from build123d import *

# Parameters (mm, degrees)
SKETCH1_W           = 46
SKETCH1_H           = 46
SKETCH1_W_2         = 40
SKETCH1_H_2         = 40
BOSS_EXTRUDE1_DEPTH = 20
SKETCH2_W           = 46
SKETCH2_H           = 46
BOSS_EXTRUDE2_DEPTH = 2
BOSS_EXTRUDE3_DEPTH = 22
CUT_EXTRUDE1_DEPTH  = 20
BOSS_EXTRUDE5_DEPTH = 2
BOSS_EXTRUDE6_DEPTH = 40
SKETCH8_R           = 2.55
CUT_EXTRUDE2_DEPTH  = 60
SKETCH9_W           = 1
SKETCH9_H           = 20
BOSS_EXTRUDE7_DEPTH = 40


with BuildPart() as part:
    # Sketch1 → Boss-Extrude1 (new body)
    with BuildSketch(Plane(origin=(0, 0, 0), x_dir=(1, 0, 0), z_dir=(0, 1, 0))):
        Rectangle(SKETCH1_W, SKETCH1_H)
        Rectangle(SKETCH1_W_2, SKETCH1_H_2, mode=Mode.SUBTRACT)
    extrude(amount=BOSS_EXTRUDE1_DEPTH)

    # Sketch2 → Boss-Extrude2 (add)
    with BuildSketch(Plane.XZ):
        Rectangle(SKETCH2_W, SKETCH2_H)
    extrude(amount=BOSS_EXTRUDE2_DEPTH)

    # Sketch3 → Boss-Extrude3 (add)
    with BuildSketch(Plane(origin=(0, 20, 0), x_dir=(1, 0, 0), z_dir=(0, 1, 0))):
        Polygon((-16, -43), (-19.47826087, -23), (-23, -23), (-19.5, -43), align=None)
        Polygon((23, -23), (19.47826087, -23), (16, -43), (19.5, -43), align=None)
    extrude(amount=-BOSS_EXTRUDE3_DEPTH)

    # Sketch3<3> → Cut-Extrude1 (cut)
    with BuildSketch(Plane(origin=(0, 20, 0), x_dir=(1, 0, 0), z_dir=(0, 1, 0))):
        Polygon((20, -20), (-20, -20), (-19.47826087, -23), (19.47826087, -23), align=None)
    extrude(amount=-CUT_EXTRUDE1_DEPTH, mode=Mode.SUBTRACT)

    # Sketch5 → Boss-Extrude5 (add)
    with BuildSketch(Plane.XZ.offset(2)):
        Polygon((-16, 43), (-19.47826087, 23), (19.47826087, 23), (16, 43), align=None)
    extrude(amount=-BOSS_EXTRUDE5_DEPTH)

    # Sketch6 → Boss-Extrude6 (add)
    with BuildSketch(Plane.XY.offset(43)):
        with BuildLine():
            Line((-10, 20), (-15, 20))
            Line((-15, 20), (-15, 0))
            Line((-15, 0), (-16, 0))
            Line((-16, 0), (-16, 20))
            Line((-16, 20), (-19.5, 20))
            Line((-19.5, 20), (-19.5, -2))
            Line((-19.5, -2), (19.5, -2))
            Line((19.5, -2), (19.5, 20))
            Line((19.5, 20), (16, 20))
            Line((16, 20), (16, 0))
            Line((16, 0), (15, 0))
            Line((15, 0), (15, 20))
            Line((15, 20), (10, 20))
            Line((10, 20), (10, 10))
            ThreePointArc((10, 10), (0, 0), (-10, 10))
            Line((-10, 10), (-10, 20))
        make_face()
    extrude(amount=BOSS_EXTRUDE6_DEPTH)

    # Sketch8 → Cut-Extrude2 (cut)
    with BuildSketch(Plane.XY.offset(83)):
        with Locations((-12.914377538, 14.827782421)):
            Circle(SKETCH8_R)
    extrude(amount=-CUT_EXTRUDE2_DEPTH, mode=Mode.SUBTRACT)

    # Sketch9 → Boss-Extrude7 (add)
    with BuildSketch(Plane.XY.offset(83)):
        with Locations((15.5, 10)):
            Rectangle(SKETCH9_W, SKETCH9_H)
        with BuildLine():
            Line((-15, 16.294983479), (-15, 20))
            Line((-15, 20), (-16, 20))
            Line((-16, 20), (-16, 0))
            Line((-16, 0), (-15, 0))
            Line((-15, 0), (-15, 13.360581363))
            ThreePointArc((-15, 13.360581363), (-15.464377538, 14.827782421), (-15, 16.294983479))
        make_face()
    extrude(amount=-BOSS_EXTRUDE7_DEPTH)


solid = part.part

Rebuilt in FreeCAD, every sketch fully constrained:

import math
import FreeCAD as App
import Part
import Sketcher

doc = App.newDocument("Part")
body = doc.addObject("PartDesign::Body", "Body")

# Sketch on XZ plane
sketch1 = body.newObject("Sketcher::SketchObject", "Sketch")
sketch1.AttachmentSupport = (doc.getObject("XZ_Plane"), [""])
sketch1.MapMode = "FlatFace"
sketch1.addGeometry([
    Part.LineSegment(App.Vector(-23, -23, 0), App.Vector(-23, 23, 0)),  # 0
    Part.LineSegment(App.Vector(-23, 23, 0), App.Vector(23, 23, 0)),  # 1
    Part.LineSegment(App.Vector(23, 23, 0), App.Vector(23, -23, 0)),  # 2
    Part.LineSegment(App.Vector(23, -23, 0), App.Vector(-23, -23, 0)),  # 3
    Part.LineSegment(App.Vector(20, 20, 0), App.Vector(-20, 20, 0)),  # 4
    Part.LineSegment(App.Vector(-20, 20, 0), App.Vector(-20, -20, 0)),  # 5
    Part.LineSegment(App.Vector(-20, -20, 0), App.Vector(20, -20, 0)),  # 6
    Part.LineSegment(App.Vector(20, -20, 0), App.Vector(20, 20, 0)),  # 7
], False)
sketch1.addConstraint([
    Sketcher.Constraint("Coincident", 0, 2, 1, 1),
    Sketcher.Constraint("Coincident", 1, 2, 2, 1),
    Sketcher.Constraint("Coincident", 2, 2, 3, 1),
    Sketcher.Constraint("Coincident", 3, 2, 0, 1),
    Sketcher.Constraint("Coincident", 4, 2, 5, 1),
    Sketcher.Constraint("Coincident", 5, 2, 6, 1),
    Sketcher.Constraint("Coincident", 6, 2, 7, 1),
    Sketcher.Constraint("Coincident", 7, 2, 4, 1),
    Sketcher.Constraint("Vertical", 0),
    Sketcher.Constraint("Horizontal", 1),
    Sketcher.Constraint("Vertical", 2),
    Sketcher.Constraint("Horizontal", 3),
    Sketcher.Constraint("Horizontal", 4),
    Sketcher.Constraint("Vertical", 5),
    Sketcher.Constraint("Horizontal", 6),
    Sketcher.Constraint("Vertical", 7),
    Sketcher.Constraint("Symmetric", 0, 2, 2, 2, -1, 1),
    Sketcher.Constraint("Symmetric", 4, 2, 6, 2, -1, 1),
    Sketcher.Constraint("Equal", 3, 0),
    Sketcher.Constraint("Equal", 6, 5),
    Sketcher.Constraint("DistanceX", 1, 1, 1, 2, 46.0),
    Sketcher.Constraint("DistanceX", 4, 2, 4, 1, 40.0),
])
pad1 = body.newObject("PartDesign::Pad", "Pad")
pad1.Profile = sketch1
pad1.Length = 20
pad1.Reversed = True

# Sketch on XZ plane
sketch2 = body.newObject("Sketcher::SketchObject", "Sketch001")
sketch2.AttachmentSupport = (doc.getObject("XZ_Plane"), [""])
sketch2.MapMode = "FlatFace"
sketch2.addGeometry([
    Part.LineSegment(App.Vector(-23, 23, 0), App.Vector(-23, -23, 0)),
    Part.LineSegment(App.Vector(-23, -23, 0), App.Vector(23, -23, 0)),
    Part.LineSegment(App.Vector(23, -23, 0), App.Vector(23, 23, 0)),
    Part.LineSegment(App.Vector(23, 23, 0), App.Vector(-23, 23, 0)),
], False)
sketch2.addConstraint([
    Sketcher.Constraint("Coincident", 0, 2, 1, 1),
    Sketcher.Constraint("Coincident", 1, 2, 2, 1),
    Sketcher.Constraint("Coincident", 2, 2, 3, 1),
    Sketcher.Constraint("Coincident", 3, 2, 0, 1),
    Sketcher.Constraint("Vertical", 0),
    Sketcher.Constraint("Horizontal", 1),
    Sketcher.Constraint("Vertical", 2),
    Sketcher.Constraint("Horizontal", 3),
    Sketcher.Constraint("Symmetric", 0, 2, 2, 2, -1, 1),
    Sketcher.Constraint("Equal", 3, 0),
    Sketcher.Constraint("DistanceX", 1, 1, 1, 2, 46.0),
])
pad2 = body.newObject("PartDesign::Pad", "Pad001")
pad2.Profile = sketch2
pad2.Length = 2

# Sketch on XZ plane
sketch3 = body.newObject("Sketcher::SketchObject", "Sketch002")
sketch3.AttachmentSupport = (doc.getObject("XZ_Plane"), [""])
sketch3.MapMode = "FlatFace"
sketch3.AttachmentOffset = App.Placement(App.Vector(0, 0, -20), App.Rotation())
sketch3.addGeometry([
    Part.LineSegment(App.Vector(-16, 43, 0), App.Vector(-19.5, 23, 0)),  # 0
    Part.LineSegment(App.Vector(-19.5, 23, 0), App.Vector(-23, 23, 0)),  # 1
    Part.LineSegment(App.Vector(-23, 23, 0), App.Vector(-19.5, 43, 0)),  # 2
    Part.LineSegment(App.Vector(-19.5, 43, 0), App.Vector(-16, 43, 0)),  # 3
    Part.LineSegment(App.Vector(23, 23, 0), App.Vector(19.5, 23, 0)),  # 4
    Part.LineSegment(App.Vector(19.5, 23, 0), App.Vector(16, 43, 0)),  # 5
    Part.LineSegment(App.Vector(16, 43, 0), App.Vector(19.5, 43, 0)),  # 6
    Part.LineSegment(App.Vector(19.5, 43, 0), App.Vector(23, 23, 0)),  # 7
], False)
sketch3.addConstraint([
    Sketcher.Constraint("Coincident", 0, 2, 1, 1),
    Sketcher.Constraint("Coincident", 1, 2, 2, 1),
    Sketcher.Constraint("Coincident", 2, 2, 3, 1),
    Sketcher.Constraint("Coincident", 3, 2, 0, 1),
    Sketcher.Constraint("Coincident", 4, 2, 5, 1),
    Sketcher.Constraint("Coincident", 5, 2, 6, 1),
    Sketcher.Constraint("Coincident", 6, 2, 7, 1),
    Sketcher.Constraint("Coincident", 7, 2, 4, 1),
    Sketcher.Constraint("Horizontal", 1),
    Sketcher.Constraint("Horizontal", 3),
    Sketcher.Constraint("Horizontal", 4),
    Sketcher.Constraint("Horizontal", 6),
    Sketcher.Constraint("Symmetric", 0, 2, 4, 2, -2),
    Sketcher.Constraint("Symmetric", 3, 2, 5, 2, -2),
    Sketcher.Constraint("Equal", 1, 4),
    Sketcher.Constraint("Equal", 3, 6),
    Sketcher.Constraint("DistanceX", 3, 1, 3, 2, 3.5),
    Sketcher.Constraint("DistanceY", -1, 1, 0, 2, 23.0),
    Sketcher.Constraint("DistanceX", 1, 2, -1, 1, 23.0),
    Sketcher.Constraint("DistanceY", -1, 1, 2, 2, 43.0),
    Sketcher.Constraint("DistanceX", 3, 2, -1, 1, 16.0),
    Sketcher.Constraint("DistanceX", 1, 2, 1, 1, 3.521739),
])
pad3 = body.newObject("PartDesign::Pad", "Pad002")
pad3.Profile = sketch3
pad3.Length = 22

# Sketch on XZ plane
sketch4 = body.newObject("Sketcher::SketchObject", "Sketch003")
sketch4.AttachmentSupport = (doc.getObject("XZ_Plane"), [""])
sketch4.MapMode = "FlatFace"
sketch4.AttachmentOffset = App.Placement(App.Vector(0, 0, -20), App.Rotation())
sketch4.addGeometry([
    Part.LineSegment(App.Vector(20, 20, 0), App.Vector(-20, 20, 0)),
    Part.LineSegment(App.Vector(-20, 20, 0), App.Vector(-19.5, 23, 0)),
    Part.LineSegment(App.Vector(-19.5, 23, 0), App.Vector(19.5, 23, 0)),
    Part.LineSegment(App.Vector(19.5, 23, 0), App.Vector(20, 20, 0)),
], False)
sketch4.addConstraint([
    Sketcher.Constraint("Coincident", 0, 2, 1, 1),
    Sketcher.Constraint("Coincident", 1, 2, 2, 1),
    Sketcher.Constraint("Coincident", 2, 2, 3, 1),
    Sketcher.Constraint("Coincident", 3, 2, 0, 1),
    Sketcher.Constraint("Horizontal", 0),
    Sketcher.Constraint("Horizontal", 2),
    Sketcher.Constraint("Equal", 1, 3),
    Sketcher.Constraint("DistanceX", 0, 2, 0, 1, 40.0),
    Sketcher.Constraint("DistanceX", 0, 2, -1, 1, 20.0),
    Sketcher.Constraint("DistanceY", -1, 1, 0, 2, 20.0),
    Sketcher.Constraint("DistanceY", -1, 1, 1, 2, 23.0),
    Sketcher.Constraint("DistanceX", 2, 1, 2, 2, 38.956522),
])
pocket1 = body.newObject("PartDesign::Pocket", "Pocket")
pocket1.Profile = sketch4
pocket1.Length = 20
pocket1.Reversed = True

# Sketch on XZ plane
sketch5 = body.newObject("Sketcher::SketchObject", "Sketch004")
sketch5.AttachmentSupport = (doc.getObject("XZ_Plane"), [""])
sketch5.MapMode = "FlatFace"
sketch5.AttachmentOffset = App.Placement(App.Vector(0, 0, 2), App.Rotation())
sketch5.addGeometry([
    Part.LineSegment(App.Vector(-16, 43, 0), App.Vector(-19, 23, 0)),
    Part.LineSegment(App.Vector(-19, 23, 0), App.Vector(19, 23, 0)),
    Part.LineSegment(App.Vector(19, 23, 0), App.Vector(16, 43, 0)),
    Part.LineSegment(App.Vector(16, 43, 0), App.Vector(-16, 43, 0)),
], False)
sketch5.addConstraint([
    Sketcher.Constraint("Coincident", 0, 2, 1, 1),
    Sketcher.Constraint("Coincident", 1, 2, 2, 1),
    Sketcher.Constraint("Coincident", 2, 2, 3, 1),
    Sketcher.Constraint("Coincident", 3, 2, 0, 1),
    Sketcher.Constraint("Horizontal", 1),
    Sketcher.Constraint("Horizontal", 3),
    Sketcher.Constraint("Equal", 0, 2),
    Sketcher.Constraint("DistanceX", 3, 2, 3, 1, 32.0),
    Sketcher.Constraint("DistanceY", -1, 1, 0, 2, 23.0),
    Sketcher.Constraint("DistanceX", -1, 1, 2, 2, 16.0),
    Sketcher.Constraint("DistanceY", -1, 1, 2, 2, 43.0),
    Sketcher.Constraint("DistanceX", 1, 1, 1, 2, 38.956522),
])
pad4 = body.newObject("PartDesign::Pad", "Pad003")
pad4.Profile = sketch5
pad4.Length = 2
pad4.Reversed = True

# Sketch on XY plane
sketch6 = body.newObject("Sketcher::SketchObject", "Sketch005")
sketch6.AttachmentSupport = (doc.getObject("XY_Plane"), [""])
sketch6.MapMode = "FlatFace"
sketch6.AttachmentOffset = App.Placement(App.Vector(0, 0, 43), App.Rotation())
sketch6.addGeometry([
    Part.LineSegment(App.Vector(-10, 20, 0), App.Vector(-15, 20, 0)),  # 0
    Part.LineSegment(App.Vector(-15, 20, 0), App.Vector(-15, 0, 0)),  # 1
    Part.LineSegment(App.Vector(-15, 0, 0), App.Vector(-16, 0, 0)),  # 2
    Part.LineSegment(App.Vector(-16, 0, 0), App.Vector(-16, 20, 0)),  # 3
    Part.LineSegment(App.Vector(-16, 20, 0), App.Vector(-19.5, 20, 0)),  # 4
    Part.LineSegment(App.Vector(-19.5, 20, 0), App.Vector(-19.5, -2, 0)),  # 5
    Part.LineSegment(App.Vector(-19.5, -2, 0), App.Vector(19.5, -2, 0)),  # 6
    Part.LineSegment(App.Vector(19.5, -2, 0), App.Vector(19.5, 20, 0)),  # 7
    Part.LineSegment(App.Vector(19.5, 20, 0), App.Vector(16, 20, 0)),  # 8
    Part.LineSegment(App.Vector(16, 20, 0), App.Vector(16, 0, 0)),  # 9
    Part.LineSegment(App.Vector(16, 0, 0), App.Vector(15, 0, 0)),  # 10
    Part.LineSegment(App.Vector(15, 0, 0), App.Vector(15, 20, 0)),  # 11
    Part.LineSegment(App.Vector(15, 20, 0), App.Vector(10, 20, 0)),  # 12
    Part.LineSegment(App.Vector(10, 20, 0), App.Vector(10, 10, 0)),  # 13
    Part.ArcOfCircle(Part.Circle(App.Vector(0, 10, 0), App.Vector(0, 0, 1), 10), math.radians(180), math.radians(360)),  # 14
    Part.LineSegment(App.Vector(-10, 10, 0), App.Vector(-10, 20, 0)),  # 15
], False)
sketch6.addConstraint([
    Sketcher.Constraint("Coincident", 0, 2, 1, 1),
    Sketcher.Constraint("Coincident", 1, 2, 2, 1),
    Sketcher.Constraint("Coincident", 2, 2, 3, 1),
    Sketcher.Constraint("Coincident", 3, 2, 4, 1),
    Sketcher.Constraint("Coincident", 4, 2, 5, 1),
    Sketcher.Constraint("Coincident", 5, 2, 6, 1),
    Sketcher.Constraint("Coincident", 6, 2, 7, 1),
    Sketcher.Constraint("Coincident", 7, 2, 8, 1),
    Sketcher.Constraint("Coincident", 8, 2, 9, 1),
    Sketcher.Constraint("Coincident", 9, 2, 10, 1),
    Sketcher.Constraint("Coincident", 10, 2, 11, 1),
    Sketcher.Constraint("Coincident", 11, 2, 12, 1),
    Sketcher.Constraint("Coincident", 12, 2, 13, 1),
    Sketcher.Constraint("Tangent", 13, 2, 14, 2),
    Sketcher.Constraint("Tangent", 14, 1, 15, 1),
    Sketcher.Constraint("Coincident", 15, 2, 0, 1),
    Sketcher.Constraint("Horizontal", 0),
    Sketcher.Constraint("Vertical", 1),
    Sketcher.Constraint("Horizontal", 2),
    Sketcher.Constraint("Vertical", 3),
    Sketcher.Constraint("Horizontal", 4),
    Sketcher.Constraint("Vertical", 5),
    Sketcher.Constraint("Horizontal", 6),
    Sketcher.Constraint("Vertical", 7),
    Sketcher.Constraint("Horizontal", 8),
    Sketcher.Constraint("Vertical", 9),
    Sketcher.Constraint("Horizontal", 10),
    Sketcher.Constraint("Vertical", 11),
    Sketcher.Constraint("Horizontal", 12),
    Sketcher.Constraint("Vertical", 13),
    Sketcher.Constraint("Vertical", 15),
    Sketcher.Constraint("Symmetric", 2, 2, 9, 2, -1, 1),
    Sketcher.Constraint("Symmetric", 4, 2, 7, 2, -2),
    Sketcher.Constraint("Symmetric", 1, 2, 10, 2, -2),
    Sketcher.Constraint("Symmetric", 12, 2, 15, 2, -2),
    Sketcher.Constraint("Horizontal", 0, 2, 3, 2),
    Sketcher.Constraint("Radius", 14, 10.0),
    Sketcher.Constraint("DistanceX", 0, 2, 0, 1, 5.0),
    Sketcher.Constraint("DistanceX", 2, 2, 2, 1, 1.0),
    Sketcher.Constraint("DistanceX", 6, 1, 6, 2, 39.0),
    Sketcher.Constraint("DistanceY", 1, 2, 1, 1, 20.0),
    Sketcher.Constraint("DistanceY", 5, 2, 5, 1, 22.0),
    Sketcher.Constraint("DistanceY", 13, 2, 13, 1, 10.0),
])
pad5 = body.newObject("PartDesign::Pad", "Pad004")
pad5.Profile = sketch6
pad5.Length = 40

# Sketch on XY plane
sketch7 = body.newObject("Sketcher::SketchObject", "Sketch006")
sketch7.AttachmentSupport = (doc.getObject("XY_Plane"), [""])
sketch7.MapMode = "FlatFace"
sketch7.AttachmentOffset = App.Placement(App.Vector(0, 0, 83), App.Rotation())
sketch7.addGeometry(Part.Circle(App.Vector(-12.9, 14.8, 0), App.Vector(0, 0, 1), 2.5), False)
sketch7.addConstraint([
    Sketcher.Constraint("Diameter", 0, 5.1),
    Sketcher.Constraint("DistanceX", 0, 3, -1, 1, 12.914378),
    Sketcher.Constraint("DistanceY", -1, 1, 0, 3, 14.827782),
])
pocket2 = body.newObject("PartDesign::Pocket", "Pocket001")
pocket2.Profile = sketch7
pocket2.Length = 60

# Sketch on XY plane
sketch8 = body.newObject("Sketcher::SketchObject", "Sketch007")
sketch8.AttachmentSupport = (doc.getObject("XY_Plane"), [""])
sketch8.MapMode = "FlatFace"
sketch8.AttachmentOffset = App.Placement(App.Vector(0, 0, 83), App.Rotation())
sketch8.addGeometry([
    Part.LineSegment(App.Vector(15, 20, 0), App.Vector(15, 0, 0)),  # 0
    Part.LineSegment(App.Vector(15, 0, 0), App.Vector(16, 0, 0)),  # 1
    Part.LineSegment(App.Vector(16, 0, 0), App.Vector(16, 20, 0)),  # 2
    Part.LineSegment(App.Vector(16, 20, 0), App.Vector(15, 20, 0)),  # 3
    Part.LineSegment(App.Vector(-15, 16.3, 0), App.Vector(-15, 20, 0)),  # 4
    Part.LineSegment(App.Vector(-15, 20, 0), App.Vector(-16, 20, 0)),  # 5
    Part.LineSegment(App.Vector(-16, 20, 0), App.Vector(-16, 0, 0)),  # 6
    Part.LineSegment(App.Vector(-16, 0, 0), App.Vector(-15, 0, 0)),  # 7
    Part.LineSegment(App.Vector(-15, 0, 0), App.Vector(-15, 13.4, 0)),  # 8
    Part.ArcOfCircle(Part.Circle(App.Vector(-12.9, 14.8, 0), App.Vector(0, 0, 1), 2.5), math.radians(145), math.radians(215)),  # 9
], False)
sketch8.addConstraint([
    Sketcher.Constraint("Coincident", 0, 2, 1, 1),
    Sketcher.Constraint("Coincident", 1, 2, 2, 1),
    Sketcher.Constraint("Coincident", 2, 2, 3, 1),
    Sketcher.Constraint("Coincident", 3, 2, 0, 1),
    Sketcher.Constraint("Coincident", 4, 2, 5, 1),
    Sketcher.Constraint("Coincident", 5, 2, 6, 1),
    Sketcher.Constraint("Coincident", 6, 2, 7, 1),
    Sketcher.Constraint("Coincident", 7, 2, 8, 1),
    Sketcher.Constraint("Coincident", 8, 2, 9, 2),
    Sketcher.Constraint("Coincident", 9, 1, 4, 1),
    Sketcher.Constraint("Vertical", 0),
    Sketcher.Constraint("Horizontal", 1),
    Sketcher.Constraint("Vertical", 2),
    Sketcher.Constraint("Horizontal", 3),
    Sketcher.Constraint("Vertical", 4),
    Sketcher.Constraint("Horizontal", 5),
    Sketcher.Constraint("Vertical", 6),
    Sketcher.Constraint("Horizontal", 7),
    Sketcher.Constraint("Vertical", 8),
    Sketcher.Constraint("Symmetric", 1, 2, 6, 2, -1, 1),
    Sketcher.Constraint("Symmetric", 3, 2, 4, 2, -2),
    Sketcher.Constraint("Symmetric", 0, 2, 7, 2, -2),
    Sketcher.Constraint("DistanceX", 1, 1, 1, 2, 1.0),
    Sketcher.Constraint("DistanceY", 0, 2, 0, 1, 20.0),
    Sketcher.Constraint("Radius", 9, 2.55),
    Sketcher.Constraint("DistanceX", -1, 1, 0, 2, 15.0),
    Sketcher.Constraint("DistanceY", 8, 1, 8, 2, 13.360581),
    Sketcher.Constraint("DistanceY", 8, 2, 9, 3, 1.467201),
])
pad6 = body.newObject("PartDesign::Pad", "Pad005")
pad6.Profile = sketch8
pad6.Length = 40
pad6.Reversed = True

doc.recompute()
